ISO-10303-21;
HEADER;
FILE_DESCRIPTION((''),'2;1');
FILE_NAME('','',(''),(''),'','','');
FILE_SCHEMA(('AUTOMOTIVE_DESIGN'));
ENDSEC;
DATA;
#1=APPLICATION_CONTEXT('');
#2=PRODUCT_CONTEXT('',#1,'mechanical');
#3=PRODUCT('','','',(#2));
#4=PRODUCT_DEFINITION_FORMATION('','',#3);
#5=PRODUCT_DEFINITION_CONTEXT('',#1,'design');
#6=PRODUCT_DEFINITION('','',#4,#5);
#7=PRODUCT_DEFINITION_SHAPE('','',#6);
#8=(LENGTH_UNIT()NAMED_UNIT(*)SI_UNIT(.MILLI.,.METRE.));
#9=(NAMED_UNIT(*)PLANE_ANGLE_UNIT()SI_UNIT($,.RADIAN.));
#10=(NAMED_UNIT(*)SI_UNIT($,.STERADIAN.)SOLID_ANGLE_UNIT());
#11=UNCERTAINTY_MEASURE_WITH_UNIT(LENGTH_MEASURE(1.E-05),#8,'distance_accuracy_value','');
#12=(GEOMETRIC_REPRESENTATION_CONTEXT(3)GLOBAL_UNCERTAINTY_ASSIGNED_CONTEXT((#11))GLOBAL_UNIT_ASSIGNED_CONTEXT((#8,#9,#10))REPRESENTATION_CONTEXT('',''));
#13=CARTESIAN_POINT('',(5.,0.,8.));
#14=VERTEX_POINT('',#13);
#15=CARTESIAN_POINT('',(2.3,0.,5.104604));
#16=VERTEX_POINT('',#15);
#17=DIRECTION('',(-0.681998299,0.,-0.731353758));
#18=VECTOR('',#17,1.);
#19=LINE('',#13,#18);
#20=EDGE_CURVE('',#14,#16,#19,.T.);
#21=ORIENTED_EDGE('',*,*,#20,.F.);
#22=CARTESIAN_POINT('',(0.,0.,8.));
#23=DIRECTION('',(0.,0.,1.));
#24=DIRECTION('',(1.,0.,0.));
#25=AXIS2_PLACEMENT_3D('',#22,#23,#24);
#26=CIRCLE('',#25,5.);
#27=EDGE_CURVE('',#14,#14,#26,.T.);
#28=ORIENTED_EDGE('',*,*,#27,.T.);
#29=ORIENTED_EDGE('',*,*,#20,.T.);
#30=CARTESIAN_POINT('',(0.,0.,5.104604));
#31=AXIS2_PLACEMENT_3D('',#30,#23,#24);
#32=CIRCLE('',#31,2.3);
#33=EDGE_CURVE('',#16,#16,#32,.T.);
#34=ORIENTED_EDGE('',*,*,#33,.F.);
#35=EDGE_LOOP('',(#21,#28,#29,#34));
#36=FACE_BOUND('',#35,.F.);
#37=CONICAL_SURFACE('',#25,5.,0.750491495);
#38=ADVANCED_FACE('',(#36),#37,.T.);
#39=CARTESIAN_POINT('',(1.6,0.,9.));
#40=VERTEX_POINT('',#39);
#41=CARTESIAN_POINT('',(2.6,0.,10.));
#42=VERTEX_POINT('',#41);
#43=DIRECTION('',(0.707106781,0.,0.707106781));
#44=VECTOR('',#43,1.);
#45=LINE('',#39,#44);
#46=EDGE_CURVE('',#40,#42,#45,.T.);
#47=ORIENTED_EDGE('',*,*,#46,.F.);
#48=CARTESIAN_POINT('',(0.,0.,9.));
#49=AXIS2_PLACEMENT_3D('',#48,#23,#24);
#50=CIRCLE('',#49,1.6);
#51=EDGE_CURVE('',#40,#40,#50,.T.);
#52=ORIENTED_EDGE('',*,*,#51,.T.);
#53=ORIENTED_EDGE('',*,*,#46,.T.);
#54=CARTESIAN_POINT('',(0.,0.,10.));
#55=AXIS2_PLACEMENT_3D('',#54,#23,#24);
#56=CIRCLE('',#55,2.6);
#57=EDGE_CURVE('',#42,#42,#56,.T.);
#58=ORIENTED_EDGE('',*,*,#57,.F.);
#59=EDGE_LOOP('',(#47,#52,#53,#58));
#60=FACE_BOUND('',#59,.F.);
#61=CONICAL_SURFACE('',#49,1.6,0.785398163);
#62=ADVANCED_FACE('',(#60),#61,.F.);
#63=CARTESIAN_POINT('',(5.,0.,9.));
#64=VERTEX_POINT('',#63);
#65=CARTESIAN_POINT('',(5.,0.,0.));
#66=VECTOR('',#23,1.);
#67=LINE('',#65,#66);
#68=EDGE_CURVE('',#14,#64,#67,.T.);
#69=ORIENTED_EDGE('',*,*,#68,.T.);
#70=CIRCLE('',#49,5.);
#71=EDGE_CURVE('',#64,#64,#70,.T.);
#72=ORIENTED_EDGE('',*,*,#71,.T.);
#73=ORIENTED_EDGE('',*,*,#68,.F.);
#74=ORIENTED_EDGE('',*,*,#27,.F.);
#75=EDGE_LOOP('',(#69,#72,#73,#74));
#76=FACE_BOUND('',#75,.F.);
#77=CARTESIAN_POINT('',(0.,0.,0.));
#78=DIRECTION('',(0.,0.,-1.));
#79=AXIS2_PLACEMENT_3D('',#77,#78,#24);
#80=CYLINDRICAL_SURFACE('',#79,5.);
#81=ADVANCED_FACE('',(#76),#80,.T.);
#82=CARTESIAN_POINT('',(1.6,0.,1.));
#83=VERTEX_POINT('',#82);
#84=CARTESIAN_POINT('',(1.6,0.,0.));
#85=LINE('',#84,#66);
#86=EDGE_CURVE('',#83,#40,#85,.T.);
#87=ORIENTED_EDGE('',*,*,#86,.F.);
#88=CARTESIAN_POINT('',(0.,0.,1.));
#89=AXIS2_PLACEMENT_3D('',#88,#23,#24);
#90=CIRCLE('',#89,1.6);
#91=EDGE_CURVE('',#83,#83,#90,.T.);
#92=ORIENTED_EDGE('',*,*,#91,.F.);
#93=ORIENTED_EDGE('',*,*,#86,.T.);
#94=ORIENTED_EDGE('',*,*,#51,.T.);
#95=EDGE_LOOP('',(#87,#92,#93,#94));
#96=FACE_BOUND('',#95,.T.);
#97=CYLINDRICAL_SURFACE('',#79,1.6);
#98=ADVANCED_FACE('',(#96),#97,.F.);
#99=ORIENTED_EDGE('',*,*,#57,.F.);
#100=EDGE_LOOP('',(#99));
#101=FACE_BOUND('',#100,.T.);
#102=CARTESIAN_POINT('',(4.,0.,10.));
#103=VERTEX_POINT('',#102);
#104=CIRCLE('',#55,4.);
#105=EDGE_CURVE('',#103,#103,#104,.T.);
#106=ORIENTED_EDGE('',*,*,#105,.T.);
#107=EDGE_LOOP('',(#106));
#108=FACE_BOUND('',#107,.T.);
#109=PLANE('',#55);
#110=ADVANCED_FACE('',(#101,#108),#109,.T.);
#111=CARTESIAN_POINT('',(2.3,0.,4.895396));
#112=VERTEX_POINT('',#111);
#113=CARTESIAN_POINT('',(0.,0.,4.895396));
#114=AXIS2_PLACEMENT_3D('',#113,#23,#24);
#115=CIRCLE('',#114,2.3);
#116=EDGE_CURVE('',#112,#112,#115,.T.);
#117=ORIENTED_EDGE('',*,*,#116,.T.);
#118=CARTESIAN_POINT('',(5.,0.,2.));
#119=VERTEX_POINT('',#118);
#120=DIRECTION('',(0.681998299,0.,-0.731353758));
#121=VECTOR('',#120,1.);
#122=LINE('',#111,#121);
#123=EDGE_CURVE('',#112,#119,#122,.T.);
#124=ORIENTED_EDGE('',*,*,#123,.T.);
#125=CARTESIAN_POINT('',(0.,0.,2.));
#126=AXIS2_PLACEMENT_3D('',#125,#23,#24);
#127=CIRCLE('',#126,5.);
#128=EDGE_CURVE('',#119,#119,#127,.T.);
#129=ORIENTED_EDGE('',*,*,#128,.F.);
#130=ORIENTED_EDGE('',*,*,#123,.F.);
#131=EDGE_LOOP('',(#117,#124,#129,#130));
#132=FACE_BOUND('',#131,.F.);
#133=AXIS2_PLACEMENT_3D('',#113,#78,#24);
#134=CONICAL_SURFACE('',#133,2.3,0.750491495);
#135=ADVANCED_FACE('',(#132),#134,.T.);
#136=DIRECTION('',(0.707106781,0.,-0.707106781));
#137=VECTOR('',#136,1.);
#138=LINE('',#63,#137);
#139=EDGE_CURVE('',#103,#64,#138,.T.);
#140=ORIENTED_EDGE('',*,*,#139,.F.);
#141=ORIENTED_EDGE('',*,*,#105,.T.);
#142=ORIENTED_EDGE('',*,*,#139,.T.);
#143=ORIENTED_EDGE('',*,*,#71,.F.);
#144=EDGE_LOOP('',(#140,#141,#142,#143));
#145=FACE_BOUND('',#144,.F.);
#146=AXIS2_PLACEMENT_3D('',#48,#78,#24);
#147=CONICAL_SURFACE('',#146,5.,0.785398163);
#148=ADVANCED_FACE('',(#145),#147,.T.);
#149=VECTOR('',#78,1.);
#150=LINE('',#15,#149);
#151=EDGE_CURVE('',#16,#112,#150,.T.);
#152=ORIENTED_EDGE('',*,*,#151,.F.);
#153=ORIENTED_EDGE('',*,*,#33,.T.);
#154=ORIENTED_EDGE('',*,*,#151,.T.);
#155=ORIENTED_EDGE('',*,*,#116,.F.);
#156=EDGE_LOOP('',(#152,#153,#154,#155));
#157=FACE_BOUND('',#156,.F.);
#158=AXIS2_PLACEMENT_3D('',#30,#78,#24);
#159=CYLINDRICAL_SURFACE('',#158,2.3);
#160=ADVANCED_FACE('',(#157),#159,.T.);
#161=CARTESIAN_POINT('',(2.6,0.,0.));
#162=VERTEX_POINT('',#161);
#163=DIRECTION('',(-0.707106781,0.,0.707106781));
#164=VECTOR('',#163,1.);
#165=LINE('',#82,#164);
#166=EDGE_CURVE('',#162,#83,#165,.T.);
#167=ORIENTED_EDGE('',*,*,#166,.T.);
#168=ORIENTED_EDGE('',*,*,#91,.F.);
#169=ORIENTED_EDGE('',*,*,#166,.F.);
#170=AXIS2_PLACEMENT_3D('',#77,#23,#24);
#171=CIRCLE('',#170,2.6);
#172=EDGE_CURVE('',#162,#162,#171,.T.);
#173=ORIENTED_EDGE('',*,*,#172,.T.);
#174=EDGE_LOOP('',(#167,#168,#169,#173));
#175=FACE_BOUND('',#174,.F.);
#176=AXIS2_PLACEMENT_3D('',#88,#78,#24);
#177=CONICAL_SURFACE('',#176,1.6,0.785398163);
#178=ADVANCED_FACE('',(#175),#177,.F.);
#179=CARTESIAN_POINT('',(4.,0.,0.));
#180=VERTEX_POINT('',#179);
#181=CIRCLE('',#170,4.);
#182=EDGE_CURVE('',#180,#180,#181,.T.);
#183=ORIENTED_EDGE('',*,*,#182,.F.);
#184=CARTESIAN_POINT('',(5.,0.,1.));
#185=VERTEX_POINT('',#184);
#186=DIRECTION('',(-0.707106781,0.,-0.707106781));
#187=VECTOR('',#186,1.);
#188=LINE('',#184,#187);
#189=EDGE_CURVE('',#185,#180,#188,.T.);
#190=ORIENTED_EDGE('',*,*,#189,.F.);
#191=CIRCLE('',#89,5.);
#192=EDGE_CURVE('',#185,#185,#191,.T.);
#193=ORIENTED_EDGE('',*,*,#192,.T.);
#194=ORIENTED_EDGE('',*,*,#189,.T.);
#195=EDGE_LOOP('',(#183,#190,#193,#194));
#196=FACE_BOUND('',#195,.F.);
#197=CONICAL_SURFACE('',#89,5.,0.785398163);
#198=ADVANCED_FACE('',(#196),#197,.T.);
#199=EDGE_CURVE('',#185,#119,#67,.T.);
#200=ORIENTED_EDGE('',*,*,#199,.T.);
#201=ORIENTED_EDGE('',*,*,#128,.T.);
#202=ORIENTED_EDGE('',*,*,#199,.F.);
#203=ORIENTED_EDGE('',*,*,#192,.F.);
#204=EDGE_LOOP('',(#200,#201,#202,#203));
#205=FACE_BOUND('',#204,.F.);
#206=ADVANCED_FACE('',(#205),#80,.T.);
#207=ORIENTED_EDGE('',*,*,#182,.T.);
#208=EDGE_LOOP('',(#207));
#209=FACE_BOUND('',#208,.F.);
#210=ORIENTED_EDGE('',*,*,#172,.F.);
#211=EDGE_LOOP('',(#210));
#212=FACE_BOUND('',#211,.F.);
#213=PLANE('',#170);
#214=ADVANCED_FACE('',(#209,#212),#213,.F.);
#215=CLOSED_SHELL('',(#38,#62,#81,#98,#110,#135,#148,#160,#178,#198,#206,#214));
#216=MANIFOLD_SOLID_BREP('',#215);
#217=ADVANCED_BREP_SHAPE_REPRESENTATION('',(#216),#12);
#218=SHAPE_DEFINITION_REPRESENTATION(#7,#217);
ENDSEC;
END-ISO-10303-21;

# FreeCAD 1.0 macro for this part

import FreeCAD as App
import Part
import Sketcher
from FreeCAD import Vector
Q = App.Units.Quantity


def edges_at(feature, points):
    """Names of the edges that pass closest to the given points."""
    edges = feature.Shape.Edges
    near = lambda p: min(range(len(edges)), key=lambda i: edges[i].distToShape(Part.Vertex(*p))[0])
    return sorted({f"Edge{near(p) + 1}" for p in points})

doc = App.newDocument("Part")
body = doc.addObject("PartDesign::Body", "Body")

sketch1 = body.newObject("Sketcher::SketchObject", "Sketch")
sketch1.AttachmentSupport = (doc.getObject("XY_Plane"), [""])
sketch1.MapMode = "FlatFace"
sketch1.addGeometry([
    Part.Circle(Vector(0, 0, 0), Vector(0, 0, 1), 5),
    Part.Circle(Vector(0, 0, 0), Vector(0, 0, 1), 1.6),
], False)
sketch1.addConstraint([
    Sketcher.Constraint("Coincident", 0, 3, -1, 1),
    Sketcher.Constraint("Coincident", 1, 3, -1, 1),
    Sketcher.Constraint("Diameter", 0, 10.0),
    Sketcher.Constraint("Diameter", 1, 3.2),
])
pad1 = body.newObject("PartDesign::Pad", "Pad")
pad1.Profile = sketch1
pad1.Length = 10

sketch2 = body.newObject("Sketcher::SketchObject", "Sketch001")
sketch2.AttachmentSupport = (doc.getObject("XZ_Plane"), [""])
sketch2.MapMode = "FlatFace"
sketch2.addGeometry([
    Part.LineSegment(Vector(5, 2, 0), Vector(5, 8, 0)),
    Part.LineSegment(Vector(5, 8, 0), Vector(2.3, 5.1, 0)),
    Part.LineSegment(Vector(2.3, 5.1, 0), Vector(2.3, 4.9, 0)),
    Part.LineSegment(Vector(2.3, 4.9, 0), Vector(5, 2, 0)),
], False)
sketch2.addConstraint([
    Sketcher.Constraint("Coincident", 0, 2, 1, 1),
    Sketcher.Constraint("Coincident", 1, 2, 2, 1),
    Sketcher.Constraint("Coincident", 2, 2, 3, 1),
    Sketcher.Constraint("Coincident", 3, 2, 0, 1),
    Sketcher.Constraint("Vertical", 0),
    Sketcher.Constraint("Vertical", 2),
    Sketcher.Constraint("Equal", 1, 3),
    Sketcher.Constraint("DistanceY", 0, 1, 0, 2, 6.0),
    Sketcher.Constraint("Angle", 1, Q("-132.999995 deg")),
    Sketcher.Constraint("DistanceX", -1, 1, 0, 2, 5.0),
    Sketcher.Constraint("DistanceY", -1, 1, 0, 2, 8.0),
    Sketcher.Constraint("DistanceX", -1, 1, 1, 2, 2.3),
])
groove = body.newObject("PartDesign::Groove", "Groove")
groove.Profile = sketch2
groove.ReferenceAxis = (sketch2, ["V_Axis"])
groove.Angle = 360
doc.recompute()

chamfer = body.newObject("PartDesign::Chamfer", "Chamfer")
chamfer.Base = (groove, edges_at(groove, [
    (-5, 0, 10),
    (-5, 0, 0),
    (-1.6, 0, 10),
    (-1.6, 0, 0),
]))
chamfer.Size = 1

doc.recompute()
